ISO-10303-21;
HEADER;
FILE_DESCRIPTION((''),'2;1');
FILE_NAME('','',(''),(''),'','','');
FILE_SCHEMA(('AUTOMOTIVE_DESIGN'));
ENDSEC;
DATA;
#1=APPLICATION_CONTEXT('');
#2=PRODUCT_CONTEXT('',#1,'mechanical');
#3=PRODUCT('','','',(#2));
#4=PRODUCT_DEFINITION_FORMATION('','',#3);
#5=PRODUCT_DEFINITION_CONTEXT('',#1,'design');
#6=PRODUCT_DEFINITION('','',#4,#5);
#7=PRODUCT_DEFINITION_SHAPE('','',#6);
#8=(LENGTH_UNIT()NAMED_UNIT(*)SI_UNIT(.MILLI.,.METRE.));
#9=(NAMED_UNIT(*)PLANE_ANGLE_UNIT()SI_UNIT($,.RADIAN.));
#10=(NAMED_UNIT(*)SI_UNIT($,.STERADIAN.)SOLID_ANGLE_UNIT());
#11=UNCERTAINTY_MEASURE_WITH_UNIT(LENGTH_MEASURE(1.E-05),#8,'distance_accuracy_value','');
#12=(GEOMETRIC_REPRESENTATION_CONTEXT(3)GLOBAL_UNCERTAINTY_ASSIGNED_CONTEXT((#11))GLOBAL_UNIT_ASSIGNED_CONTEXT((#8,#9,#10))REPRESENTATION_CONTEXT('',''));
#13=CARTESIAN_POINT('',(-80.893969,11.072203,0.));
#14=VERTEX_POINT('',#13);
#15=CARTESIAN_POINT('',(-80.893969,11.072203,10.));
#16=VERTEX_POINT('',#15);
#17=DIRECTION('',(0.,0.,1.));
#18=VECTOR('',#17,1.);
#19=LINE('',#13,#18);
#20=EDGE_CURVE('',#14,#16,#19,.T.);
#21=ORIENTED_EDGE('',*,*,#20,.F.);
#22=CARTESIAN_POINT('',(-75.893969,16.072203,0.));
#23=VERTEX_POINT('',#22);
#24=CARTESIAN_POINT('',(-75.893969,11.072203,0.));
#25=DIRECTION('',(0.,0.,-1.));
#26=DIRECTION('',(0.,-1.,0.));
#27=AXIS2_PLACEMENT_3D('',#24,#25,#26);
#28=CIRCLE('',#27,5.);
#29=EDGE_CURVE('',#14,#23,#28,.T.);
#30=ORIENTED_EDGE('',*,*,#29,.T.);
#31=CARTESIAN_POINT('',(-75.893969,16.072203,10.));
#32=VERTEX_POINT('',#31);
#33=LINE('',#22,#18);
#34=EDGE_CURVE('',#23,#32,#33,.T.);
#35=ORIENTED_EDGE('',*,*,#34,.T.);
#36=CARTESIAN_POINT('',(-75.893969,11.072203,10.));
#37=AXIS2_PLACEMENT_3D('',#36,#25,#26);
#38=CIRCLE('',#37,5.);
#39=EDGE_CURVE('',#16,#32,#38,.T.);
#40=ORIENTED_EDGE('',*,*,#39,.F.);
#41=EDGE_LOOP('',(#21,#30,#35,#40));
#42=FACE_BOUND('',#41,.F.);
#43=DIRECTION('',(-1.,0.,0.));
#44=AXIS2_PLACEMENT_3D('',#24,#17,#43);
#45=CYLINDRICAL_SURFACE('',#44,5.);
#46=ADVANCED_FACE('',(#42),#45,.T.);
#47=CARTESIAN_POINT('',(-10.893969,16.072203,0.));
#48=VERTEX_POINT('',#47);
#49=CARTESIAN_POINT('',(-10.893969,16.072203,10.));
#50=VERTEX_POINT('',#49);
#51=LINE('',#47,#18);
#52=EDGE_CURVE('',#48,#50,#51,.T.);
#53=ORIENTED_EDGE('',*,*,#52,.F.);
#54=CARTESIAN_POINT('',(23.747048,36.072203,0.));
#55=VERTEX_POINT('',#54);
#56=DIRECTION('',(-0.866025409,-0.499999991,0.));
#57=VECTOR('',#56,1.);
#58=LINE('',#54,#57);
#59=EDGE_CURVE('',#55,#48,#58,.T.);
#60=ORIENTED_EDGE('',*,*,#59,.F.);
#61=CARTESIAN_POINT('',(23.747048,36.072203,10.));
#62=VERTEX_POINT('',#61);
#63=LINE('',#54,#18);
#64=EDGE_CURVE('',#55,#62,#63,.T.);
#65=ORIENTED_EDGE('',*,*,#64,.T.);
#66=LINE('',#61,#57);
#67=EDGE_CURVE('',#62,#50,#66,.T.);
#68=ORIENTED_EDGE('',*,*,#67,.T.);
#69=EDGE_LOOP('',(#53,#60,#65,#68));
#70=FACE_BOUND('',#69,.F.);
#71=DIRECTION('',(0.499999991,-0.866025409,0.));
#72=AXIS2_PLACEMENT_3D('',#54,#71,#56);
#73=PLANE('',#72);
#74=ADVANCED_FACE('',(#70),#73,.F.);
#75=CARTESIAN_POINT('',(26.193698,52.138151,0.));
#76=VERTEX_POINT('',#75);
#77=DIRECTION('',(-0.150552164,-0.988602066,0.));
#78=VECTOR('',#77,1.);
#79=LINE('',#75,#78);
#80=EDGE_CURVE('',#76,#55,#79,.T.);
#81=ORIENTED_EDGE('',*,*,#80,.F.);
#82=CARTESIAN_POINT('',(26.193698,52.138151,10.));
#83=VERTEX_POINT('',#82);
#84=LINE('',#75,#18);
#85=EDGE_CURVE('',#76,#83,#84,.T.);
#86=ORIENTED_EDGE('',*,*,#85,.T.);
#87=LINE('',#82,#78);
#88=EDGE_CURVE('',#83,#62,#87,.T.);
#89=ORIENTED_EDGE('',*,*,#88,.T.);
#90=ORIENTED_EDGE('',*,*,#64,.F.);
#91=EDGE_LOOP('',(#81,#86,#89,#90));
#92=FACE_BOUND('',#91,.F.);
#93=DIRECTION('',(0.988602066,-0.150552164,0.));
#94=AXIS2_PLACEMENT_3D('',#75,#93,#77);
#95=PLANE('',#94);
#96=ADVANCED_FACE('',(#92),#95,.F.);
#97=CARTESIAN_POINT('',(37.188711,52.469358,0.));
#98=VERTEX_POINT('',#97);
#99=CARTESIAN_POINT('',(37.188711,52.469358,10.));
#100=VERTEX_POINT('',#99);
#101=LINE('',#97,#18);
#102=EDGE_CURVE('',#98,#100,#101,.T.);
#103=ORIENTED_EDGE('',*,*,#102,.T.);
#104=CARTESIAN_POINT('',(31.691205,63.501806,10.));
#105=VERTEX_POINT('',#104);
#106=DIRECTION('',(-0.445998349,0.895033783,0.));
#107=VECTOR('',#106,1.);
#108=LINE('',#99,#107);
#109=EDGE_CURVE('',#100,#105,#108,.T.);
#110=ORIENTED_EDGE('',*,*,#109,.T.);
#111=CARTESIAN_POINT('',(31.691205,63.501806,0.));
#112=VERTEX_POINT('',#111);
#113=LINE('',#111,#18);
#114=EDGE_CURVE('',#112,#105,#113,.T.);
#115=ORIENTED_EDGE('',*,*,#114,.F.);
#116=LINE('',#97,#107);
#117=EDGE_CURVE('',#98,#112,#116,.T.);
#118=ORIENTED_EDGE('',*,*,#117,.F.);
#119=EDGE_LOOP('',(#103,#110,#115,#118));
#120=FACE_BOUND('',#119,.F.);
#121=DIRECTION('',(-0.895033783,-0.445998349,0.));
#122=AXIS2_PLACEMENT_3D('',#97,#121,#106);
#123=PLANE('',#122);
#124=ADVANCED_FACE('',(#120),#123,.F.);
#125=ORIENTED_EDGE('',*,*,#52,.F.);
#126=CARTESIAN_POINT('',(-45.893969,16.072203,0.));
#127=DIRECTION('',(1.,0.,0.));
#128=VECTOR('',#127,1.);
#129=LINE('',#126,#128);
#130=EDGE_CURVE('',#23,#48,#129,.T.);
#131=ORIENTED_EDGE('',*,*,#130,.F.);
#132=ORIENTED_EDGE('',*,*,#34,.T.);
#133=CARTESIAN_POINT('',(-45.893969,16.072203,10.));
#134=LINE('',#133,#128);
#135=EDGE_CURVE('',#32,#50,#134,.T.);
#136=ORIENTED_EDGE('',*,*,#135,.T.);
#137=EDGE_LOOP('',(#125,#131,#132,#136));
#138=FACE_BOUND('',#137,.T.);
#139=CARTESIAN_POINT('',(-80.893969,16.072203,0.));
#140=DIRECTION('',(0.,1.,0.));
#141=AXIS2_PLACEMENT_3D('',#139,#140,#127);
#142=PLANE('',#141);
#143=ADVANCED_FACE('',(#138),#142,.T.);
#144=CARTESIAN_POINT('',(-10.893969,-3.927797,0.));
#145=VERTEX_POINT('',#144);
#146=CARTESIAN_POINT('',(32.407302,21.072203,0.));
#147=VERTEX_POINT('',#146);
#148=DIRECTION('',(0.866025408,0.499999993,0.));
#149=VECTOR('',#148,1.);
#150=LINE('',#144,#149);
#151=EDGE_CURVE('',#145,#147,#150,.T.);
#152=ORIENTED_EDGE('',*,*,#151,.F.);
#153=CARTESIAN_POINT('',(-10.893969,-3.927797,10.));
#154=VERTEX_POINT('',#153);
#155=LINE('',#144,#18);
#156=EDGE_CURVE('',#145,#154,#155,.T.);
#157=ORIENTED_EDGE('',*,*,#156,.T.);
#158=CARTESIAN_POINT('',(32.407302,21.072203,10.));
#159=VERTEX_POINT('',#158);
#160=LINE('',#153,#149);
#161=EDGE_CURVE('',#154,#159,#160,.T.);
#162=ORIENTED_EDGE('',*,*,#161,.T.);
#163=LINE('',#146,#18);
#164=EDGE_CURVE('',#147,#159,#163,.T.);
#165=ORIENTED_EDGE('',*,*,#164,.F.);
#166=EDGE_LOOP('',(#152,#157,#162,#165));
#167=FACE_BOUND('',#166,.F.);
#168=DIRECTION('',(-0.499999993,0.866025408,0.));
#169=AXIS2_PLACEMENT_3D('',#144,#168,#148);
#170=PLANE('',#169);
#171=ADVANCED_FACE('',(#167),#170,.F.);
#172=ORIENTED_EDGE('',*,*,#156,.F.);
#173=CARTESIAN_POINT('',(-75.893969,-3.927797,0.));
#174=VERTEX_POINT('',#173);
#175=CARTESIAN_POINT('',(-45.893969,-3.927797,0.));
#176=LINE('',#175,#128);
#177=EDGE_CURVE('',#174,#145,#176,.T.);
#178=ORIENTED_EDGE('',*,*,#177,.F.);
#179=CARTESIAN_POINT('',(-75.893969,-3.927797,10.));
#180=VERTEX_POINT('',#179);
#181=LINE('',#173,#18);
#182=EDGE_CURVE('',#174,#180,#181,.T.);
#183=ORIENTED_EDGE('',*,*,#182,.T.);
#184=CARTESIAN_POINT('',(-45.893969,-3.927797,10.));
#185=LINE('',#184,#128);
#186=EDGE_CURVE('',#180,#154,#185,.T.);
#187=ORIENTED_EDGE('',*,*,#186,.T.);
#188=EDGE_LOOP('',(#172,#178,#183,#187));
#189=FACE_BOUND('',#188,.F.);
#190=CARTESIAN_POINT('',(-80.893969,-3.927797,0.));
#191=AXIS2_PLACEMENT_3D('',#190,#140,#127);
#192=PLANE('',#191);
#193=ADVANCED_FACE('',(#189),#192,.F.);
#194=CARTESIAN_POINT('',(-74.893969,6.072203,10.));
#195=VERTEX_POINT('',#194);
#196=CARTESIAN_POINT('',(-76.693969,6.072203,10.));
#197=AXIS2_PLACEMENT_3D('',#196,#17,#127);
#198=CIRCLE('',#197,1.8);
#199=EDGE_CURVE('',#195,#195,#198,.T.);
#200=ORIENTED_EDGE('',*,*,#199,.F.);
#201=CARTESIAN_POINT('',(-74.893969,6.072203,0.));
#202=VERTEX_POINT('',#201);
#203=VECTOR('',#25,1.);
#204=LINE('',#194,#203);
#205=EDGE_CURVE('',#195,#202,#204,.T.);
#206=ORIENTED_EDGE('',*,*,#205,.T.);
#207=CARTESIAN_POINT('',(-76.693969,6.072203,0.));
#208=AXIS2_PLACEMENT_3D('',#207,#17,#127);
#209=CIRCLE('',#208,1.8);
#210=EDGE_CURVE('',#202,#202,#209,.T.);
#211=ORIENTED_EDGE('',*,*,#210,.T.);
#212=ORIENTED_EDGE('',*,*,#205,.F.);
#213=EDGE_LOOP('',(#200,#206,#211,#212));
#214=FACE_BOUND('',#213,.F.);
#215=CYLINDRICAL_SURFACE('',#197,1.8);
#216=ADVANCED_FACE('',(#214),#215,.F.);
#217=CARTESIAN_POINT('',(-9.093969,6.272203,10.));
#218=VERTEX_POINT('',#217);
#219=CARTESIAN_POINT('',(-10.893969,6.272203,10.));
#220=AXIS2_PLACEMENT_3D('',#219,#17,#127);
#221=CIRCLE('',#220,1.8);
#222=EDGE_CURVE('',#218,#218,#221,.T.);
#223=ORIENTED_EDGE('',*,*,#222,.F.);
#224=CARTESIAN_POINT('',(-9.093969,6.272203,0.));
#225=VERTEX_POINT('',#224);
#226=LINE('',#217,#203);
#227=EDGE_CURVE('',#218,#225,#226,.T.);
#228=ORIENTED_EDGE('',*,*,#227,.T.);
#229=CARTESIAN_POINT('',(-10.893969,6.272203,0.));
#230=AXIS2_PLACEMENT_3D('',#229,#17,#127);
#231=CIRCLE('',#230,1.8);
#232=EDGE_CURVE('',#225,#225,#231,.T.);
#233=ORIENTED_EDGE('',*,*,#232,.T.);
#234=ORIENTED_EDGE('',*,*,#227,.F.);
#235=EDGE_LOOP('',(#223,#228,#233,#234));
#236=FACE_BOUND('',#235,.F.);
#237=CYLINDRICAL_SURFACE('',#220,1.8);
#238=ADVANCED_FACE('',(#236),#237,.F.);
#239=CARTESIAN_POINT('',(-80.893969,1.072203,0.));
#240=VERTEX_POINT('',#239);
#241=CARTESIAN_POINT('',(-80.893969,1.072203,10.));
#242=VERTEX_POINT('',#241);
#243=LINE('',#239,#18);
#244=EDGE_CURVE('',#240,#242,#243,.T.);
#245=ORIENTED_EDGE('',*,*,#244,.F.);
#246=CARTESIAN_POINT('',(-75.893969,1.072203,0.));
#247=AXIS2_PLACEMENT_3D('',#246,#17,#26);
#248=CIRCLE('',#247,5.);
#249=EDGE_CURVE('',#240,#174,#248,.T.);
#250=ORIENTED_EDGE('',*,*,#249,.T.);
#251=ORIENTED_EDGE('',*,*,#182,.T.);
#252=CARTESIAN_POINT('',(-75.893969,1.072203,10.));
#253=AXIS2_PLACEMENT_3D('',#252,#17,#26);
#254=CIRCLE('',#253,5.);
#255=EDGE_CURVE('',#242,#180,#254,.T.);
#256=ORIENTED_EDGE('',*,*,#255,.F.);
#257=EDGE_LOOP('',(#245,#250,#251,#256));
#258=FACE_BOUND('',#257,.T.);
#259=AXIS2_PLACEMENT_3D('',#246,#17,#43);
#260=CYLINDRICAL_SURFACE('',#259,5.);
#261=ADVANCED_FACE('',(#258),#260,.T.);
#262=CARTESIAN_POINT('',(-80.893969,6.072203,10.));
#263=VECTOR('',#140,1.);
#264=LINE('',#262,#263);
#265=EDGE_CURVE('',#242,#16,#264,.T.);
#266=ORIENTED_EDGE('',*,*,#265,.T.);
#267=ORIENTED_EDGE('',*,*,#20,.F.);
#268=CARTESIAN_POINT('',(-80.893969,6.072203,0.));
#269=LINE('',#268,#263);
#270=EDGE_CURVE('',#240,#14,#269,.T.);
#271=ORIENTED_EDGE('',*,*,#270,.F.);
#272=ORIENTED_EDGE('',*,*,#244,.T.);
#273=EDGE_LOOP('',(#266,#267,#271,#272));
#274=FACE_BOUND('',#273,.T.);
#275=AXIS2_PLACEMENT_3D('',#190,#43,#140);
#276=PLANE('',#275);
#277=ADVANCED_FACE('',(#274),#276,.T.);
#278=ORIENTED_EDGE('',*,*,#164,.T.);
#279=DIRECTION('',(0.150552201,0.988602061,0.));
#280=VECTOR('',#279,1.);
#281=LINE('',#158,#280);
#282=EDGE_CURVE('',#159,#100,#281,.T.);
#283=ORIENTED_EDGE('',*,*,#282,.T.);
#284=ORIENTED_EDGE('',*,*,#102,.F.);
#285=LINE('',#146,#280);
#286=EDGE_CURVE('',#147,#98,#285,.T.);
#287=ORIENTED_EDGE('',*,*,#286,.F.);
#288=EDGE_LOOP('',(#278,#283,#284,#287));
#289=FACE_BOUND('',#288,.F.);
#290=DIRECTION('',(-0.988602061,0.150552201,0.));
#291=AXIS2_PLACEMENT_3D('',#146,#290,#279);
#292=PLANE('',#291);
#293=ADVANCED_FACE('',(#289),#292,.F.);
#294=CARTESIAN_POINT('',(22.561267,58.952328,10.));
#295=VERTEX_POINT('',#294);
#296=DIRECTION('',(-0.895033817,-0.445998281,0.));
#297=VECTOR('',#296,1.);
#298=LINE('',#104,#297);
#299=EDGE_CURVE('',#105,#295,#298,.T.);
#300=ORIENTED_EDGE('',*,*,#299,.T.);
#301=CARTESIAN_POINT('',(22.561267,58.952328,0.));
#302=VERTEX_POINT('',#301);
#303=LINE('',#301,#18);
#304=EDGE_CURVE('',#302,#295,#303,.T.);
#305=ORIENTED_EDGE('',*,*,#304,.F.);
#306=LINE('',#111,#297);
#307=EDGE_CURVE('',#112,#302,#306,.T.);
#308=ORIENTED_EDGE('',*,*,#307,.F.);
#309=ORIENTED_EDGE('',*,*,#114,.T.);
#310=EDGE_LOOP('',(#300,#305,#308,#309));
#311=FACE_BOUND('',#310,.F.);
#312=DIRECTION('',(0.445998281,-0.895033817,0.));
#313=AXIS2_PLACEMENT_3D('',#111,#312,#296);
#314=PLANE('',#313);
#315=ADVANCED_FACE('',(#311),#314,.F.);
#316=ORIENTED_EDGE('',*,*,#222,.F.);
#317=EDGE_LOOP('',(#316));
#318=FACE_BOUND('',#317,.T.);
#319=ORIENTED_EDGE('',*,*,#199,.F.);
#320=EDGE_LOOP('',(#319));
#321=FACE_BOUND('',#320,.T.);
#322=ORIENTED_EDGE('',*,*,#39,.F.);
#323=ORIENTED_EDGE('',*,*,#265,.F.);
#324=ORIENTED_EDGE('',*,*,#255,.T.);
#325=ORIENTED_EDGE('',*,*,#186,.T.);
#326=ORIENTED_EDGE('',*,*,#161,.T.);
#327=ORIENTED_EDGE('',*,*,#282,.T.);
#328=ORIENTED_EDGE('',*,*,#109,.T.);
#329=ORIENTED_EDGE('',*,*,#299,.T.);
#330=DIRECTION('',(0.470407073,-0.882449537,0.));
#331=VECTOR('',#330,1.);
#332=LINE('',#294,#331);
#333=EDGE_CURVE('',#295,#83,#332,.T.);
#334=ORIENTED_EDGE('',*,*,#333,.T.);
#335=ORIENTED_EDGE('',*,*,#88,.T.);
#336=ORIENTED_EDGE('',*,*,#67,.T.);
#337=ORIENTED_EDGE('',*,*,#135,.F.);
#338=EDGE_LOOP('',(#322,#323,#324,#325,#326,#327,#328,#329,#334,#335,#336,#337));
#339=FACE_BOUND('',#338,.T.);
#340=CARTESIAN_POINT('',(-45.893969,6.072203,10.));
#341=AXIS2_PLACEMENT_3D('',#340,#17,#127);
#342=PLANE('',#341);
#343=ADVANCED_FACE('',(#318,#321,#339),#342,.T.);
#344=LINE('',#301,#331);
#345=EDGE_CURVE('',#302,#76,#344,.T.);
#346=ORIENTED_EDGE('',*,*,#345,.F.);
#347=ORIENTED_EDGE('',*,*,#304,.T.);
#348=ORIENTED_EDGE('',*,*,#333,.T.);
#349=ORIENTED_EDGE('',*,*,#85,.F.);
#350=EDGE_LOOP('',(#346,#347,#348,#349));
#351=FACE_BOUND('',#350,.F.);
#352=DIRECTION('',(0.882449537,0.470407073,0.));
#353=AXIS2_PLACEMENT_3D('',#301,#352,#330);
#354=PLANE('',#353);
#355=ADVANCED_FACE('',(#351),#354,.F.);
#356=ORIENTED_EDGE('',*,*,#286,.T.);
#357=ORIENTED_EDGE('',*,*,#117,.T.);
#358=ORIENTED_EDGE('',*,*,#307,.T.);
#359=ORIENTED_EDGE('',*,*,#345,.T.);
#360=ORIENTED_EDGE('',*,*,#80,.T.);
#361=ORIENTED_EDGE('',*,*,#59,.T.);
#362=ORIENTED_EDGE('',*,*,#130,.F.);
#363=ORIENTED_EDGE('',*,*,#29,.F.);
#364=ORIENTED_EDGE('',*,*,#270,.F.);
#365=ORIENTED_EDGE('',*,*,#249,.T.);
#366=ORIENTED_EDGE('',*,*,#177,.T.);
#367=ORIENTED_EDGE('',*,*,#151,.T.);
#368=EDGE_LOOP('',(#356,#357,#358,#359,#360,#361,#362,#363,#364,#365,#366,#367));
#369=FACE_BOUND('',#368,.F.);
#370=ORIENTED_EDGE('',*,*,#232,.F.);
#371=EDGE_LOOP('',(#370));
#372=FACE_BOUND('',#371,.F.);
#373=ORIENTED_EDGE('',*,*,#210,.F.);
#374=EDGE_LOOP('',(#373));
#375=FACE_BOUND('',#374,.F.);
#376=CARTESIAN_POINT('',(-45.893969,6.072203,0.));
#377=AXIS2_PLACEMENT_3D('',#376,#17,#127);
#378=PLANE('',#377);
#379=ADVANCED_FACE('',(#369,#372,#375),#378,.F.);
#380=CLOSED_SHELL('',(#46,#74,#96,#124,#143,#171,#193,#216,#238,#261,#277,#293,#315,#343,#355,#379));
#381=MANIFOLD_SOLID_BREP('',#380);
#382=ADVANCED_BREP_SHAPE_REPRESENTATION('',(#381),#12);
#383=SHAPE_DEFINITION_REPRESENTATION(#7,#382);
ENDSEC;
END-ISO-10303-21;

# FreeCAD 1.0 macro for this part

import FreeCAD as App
import Part
import Sketcher
from FreeCAD import Vector
Q = App.Units.Quantity


def edges_at(feature, points):
    """Names of the edges that pass closest to the given points."""
    edges = feature.Shape.Edges
    near = lambda p: min(range(len(edges)), key=lambda i: edges[i].distToShape(Part.Vertex(*p))[0])
    return sorted({f"Edge{near(p) + 1}" for p in points})


def add_polygon(sketch, points):
    """Adds a closed chain of lines whose ends are joined by coincident constraints."""
    first, n = sketch.GeometryCount, len(points)
    for a, b in zip(points, points[1:] + points[:1]):
        sketch.addGeometry(Part.LineSegment(App.Vector(*a, 0), App.Vector(*b, 0)), False)
    for i in range(n):
        sketch.addConstraint(Sketcher.Constraint("Coincident", first + i, 2, first + (i + 1) % n, 1))

doc = App.newDocument("Part")
body = doc.addObject("PartDesign::Body", "Body")

# Sketch on XY plane
sketch1 = body.newObject("Sketcher::SketchObject", "Sketch")
sketch1.AttachmentSupport = (doc.getObject("XY_Plane"), [""])
sketch1.MapMode = "FlatFace"
add_polygon(sketch1, [(-81, 16), (-81, -4), (-11, -4), (32, 21), (37, 52), (32, 64), (23, 59), (26, 52), (24, 36), (-11, 16)])  # lines 0-9
sketch1.addConstraint([
    Sketcher.Constraint("Vertical", 0),
    Sketcher.Constraint("Horizontal", 1),
    Sketcher.Constraint("Horizontal", 9),
    Sketcher.Constraint("Perpendicular", 4, 5),
    Sketcher.Constraint("Parallel", 3, 7),
    Sketcher.Constraint("Parallel", 2, 8),
    Sketcher.Constraint("Vertical", 1, 2, 8, 2),
    Sketcher.Constraint("DistanceX", 1, 1, 1, 2, Q("70 mm")),
    Sketcher.Constraint("DistanceY", 0, 2, 0, 1, Q("20 mm")),
    Sketcher.Constraint("Angle", 2, Q("30 deg")),
    Sketcher.Constraint("Distance", 2, Q("50.000001 mm")),
    Sketcher.Constraint("Distance", 8, Q("40.000001 mm")),
    Sketcher.Constraint("DistanceX", -1, 1, 6, 2, Q("26.193698 mm")),
    Sketcher.Constraint("Distance", 6, Q("7.721889 mm")),
    Sketcher.Constraint("DistanceX", 0, 2, -1, 1, Q("80.893969 mm")),
    Sketcher.Constraint("DistanceX", -1, 1, 3, 2, Q("37.188711 mm")),
    Sketcher.Constraint("DistanceY", -1, 1, 6, 2, Q("52.138151 mm")),
    Sketcher.Constraint("DistanceY", 3, 2, 4, 2, Q("11.032448 mm")),
    Sketcher.Constraint("DistanceY", 5, 2, 4, 2, Q("4.549478 mm")),
    Sketcher.Constraint("DistanceX", 5, 2, 6, 2, Q("3.632431 mm")),
])
pad1 = body.newObject("PartDesign::Pad", "Pad")
pad1.Profile = sketch1
pad1.Length = 10
doc.recompute()

fillet = body.newObject("PartDesign::Fillet", "Fillet")
fillet.Base = (pad1, edges_at(pad1, [(-80.894, 16.072, 5), (-80.894, -3.928, 5)]))
fillet.Radius = 5

# Sketch on XY plane
sketch2 = body.newObject("Sketcher::SketchObject", "Sketch001")
sketch2.AttachmentSupport = (doc.getObject("XY_Plane"), [""])
sketch2.MapMode = "FlatFace"
sketch2.AttachmentOffset = App.Placement(Vector(0, 0, 10), App.Rotation())
sketch2.addGeometry(Part.Circle(Vector(-76.7, 6.1, 0), Vector(0, 0, 1), 1.8), False)
sketch2.addConstraint([
    Sketcher.Constraint("Diameter", 0, Q("3.6 mm")),
    Sketcher.Constraint("DistanceX", 0, 3, -1, 1, Q("76.693969 mm")),
    Sketcher.Constraint("DistanceY", -1, 1, 0, 3, Q("6.072203 mm")),
])
pocket1 = body.newObject("PartDesign::Pocket", "Pocket")
pocket1.Profile = sketch2
pocket1.Length = 20

# Sketch on XY plane
sketch3 = body.newObject("Sketcher::SketchObject", "Sketch002")
sketch3.AttachmentSupport = (doc.getObject("XY_Plane"), [""])
sketch3.MapMode = "FlatFace"
sketch3.AttachmentOffset = App.Placement(Vector(0, 0, 10), App.Rotation())
sketch3.addGeometry(Part.Circle(Vector(-10.9, 6.3, 0), Vector(0, 0, 1), 1.8), False)
sketch3.addConstraint([
    Sketcher.Constraint("Diameter", 0, Q("3.6 mm")),
    Sketcher.Constraint("DistanceX", 0, 3, -1, 1, Q("10.893969 mm")),
    Sketcher.Constraint("DistanceY", -1, 1, 0, 3, Q("6.272203 mm")),
])
pocket2 = body.newObject("PartDesign::Pocket", "Pocket001")
pocket2.Profile = sketch3
pocket2.Length = 20

doc.recompute()
